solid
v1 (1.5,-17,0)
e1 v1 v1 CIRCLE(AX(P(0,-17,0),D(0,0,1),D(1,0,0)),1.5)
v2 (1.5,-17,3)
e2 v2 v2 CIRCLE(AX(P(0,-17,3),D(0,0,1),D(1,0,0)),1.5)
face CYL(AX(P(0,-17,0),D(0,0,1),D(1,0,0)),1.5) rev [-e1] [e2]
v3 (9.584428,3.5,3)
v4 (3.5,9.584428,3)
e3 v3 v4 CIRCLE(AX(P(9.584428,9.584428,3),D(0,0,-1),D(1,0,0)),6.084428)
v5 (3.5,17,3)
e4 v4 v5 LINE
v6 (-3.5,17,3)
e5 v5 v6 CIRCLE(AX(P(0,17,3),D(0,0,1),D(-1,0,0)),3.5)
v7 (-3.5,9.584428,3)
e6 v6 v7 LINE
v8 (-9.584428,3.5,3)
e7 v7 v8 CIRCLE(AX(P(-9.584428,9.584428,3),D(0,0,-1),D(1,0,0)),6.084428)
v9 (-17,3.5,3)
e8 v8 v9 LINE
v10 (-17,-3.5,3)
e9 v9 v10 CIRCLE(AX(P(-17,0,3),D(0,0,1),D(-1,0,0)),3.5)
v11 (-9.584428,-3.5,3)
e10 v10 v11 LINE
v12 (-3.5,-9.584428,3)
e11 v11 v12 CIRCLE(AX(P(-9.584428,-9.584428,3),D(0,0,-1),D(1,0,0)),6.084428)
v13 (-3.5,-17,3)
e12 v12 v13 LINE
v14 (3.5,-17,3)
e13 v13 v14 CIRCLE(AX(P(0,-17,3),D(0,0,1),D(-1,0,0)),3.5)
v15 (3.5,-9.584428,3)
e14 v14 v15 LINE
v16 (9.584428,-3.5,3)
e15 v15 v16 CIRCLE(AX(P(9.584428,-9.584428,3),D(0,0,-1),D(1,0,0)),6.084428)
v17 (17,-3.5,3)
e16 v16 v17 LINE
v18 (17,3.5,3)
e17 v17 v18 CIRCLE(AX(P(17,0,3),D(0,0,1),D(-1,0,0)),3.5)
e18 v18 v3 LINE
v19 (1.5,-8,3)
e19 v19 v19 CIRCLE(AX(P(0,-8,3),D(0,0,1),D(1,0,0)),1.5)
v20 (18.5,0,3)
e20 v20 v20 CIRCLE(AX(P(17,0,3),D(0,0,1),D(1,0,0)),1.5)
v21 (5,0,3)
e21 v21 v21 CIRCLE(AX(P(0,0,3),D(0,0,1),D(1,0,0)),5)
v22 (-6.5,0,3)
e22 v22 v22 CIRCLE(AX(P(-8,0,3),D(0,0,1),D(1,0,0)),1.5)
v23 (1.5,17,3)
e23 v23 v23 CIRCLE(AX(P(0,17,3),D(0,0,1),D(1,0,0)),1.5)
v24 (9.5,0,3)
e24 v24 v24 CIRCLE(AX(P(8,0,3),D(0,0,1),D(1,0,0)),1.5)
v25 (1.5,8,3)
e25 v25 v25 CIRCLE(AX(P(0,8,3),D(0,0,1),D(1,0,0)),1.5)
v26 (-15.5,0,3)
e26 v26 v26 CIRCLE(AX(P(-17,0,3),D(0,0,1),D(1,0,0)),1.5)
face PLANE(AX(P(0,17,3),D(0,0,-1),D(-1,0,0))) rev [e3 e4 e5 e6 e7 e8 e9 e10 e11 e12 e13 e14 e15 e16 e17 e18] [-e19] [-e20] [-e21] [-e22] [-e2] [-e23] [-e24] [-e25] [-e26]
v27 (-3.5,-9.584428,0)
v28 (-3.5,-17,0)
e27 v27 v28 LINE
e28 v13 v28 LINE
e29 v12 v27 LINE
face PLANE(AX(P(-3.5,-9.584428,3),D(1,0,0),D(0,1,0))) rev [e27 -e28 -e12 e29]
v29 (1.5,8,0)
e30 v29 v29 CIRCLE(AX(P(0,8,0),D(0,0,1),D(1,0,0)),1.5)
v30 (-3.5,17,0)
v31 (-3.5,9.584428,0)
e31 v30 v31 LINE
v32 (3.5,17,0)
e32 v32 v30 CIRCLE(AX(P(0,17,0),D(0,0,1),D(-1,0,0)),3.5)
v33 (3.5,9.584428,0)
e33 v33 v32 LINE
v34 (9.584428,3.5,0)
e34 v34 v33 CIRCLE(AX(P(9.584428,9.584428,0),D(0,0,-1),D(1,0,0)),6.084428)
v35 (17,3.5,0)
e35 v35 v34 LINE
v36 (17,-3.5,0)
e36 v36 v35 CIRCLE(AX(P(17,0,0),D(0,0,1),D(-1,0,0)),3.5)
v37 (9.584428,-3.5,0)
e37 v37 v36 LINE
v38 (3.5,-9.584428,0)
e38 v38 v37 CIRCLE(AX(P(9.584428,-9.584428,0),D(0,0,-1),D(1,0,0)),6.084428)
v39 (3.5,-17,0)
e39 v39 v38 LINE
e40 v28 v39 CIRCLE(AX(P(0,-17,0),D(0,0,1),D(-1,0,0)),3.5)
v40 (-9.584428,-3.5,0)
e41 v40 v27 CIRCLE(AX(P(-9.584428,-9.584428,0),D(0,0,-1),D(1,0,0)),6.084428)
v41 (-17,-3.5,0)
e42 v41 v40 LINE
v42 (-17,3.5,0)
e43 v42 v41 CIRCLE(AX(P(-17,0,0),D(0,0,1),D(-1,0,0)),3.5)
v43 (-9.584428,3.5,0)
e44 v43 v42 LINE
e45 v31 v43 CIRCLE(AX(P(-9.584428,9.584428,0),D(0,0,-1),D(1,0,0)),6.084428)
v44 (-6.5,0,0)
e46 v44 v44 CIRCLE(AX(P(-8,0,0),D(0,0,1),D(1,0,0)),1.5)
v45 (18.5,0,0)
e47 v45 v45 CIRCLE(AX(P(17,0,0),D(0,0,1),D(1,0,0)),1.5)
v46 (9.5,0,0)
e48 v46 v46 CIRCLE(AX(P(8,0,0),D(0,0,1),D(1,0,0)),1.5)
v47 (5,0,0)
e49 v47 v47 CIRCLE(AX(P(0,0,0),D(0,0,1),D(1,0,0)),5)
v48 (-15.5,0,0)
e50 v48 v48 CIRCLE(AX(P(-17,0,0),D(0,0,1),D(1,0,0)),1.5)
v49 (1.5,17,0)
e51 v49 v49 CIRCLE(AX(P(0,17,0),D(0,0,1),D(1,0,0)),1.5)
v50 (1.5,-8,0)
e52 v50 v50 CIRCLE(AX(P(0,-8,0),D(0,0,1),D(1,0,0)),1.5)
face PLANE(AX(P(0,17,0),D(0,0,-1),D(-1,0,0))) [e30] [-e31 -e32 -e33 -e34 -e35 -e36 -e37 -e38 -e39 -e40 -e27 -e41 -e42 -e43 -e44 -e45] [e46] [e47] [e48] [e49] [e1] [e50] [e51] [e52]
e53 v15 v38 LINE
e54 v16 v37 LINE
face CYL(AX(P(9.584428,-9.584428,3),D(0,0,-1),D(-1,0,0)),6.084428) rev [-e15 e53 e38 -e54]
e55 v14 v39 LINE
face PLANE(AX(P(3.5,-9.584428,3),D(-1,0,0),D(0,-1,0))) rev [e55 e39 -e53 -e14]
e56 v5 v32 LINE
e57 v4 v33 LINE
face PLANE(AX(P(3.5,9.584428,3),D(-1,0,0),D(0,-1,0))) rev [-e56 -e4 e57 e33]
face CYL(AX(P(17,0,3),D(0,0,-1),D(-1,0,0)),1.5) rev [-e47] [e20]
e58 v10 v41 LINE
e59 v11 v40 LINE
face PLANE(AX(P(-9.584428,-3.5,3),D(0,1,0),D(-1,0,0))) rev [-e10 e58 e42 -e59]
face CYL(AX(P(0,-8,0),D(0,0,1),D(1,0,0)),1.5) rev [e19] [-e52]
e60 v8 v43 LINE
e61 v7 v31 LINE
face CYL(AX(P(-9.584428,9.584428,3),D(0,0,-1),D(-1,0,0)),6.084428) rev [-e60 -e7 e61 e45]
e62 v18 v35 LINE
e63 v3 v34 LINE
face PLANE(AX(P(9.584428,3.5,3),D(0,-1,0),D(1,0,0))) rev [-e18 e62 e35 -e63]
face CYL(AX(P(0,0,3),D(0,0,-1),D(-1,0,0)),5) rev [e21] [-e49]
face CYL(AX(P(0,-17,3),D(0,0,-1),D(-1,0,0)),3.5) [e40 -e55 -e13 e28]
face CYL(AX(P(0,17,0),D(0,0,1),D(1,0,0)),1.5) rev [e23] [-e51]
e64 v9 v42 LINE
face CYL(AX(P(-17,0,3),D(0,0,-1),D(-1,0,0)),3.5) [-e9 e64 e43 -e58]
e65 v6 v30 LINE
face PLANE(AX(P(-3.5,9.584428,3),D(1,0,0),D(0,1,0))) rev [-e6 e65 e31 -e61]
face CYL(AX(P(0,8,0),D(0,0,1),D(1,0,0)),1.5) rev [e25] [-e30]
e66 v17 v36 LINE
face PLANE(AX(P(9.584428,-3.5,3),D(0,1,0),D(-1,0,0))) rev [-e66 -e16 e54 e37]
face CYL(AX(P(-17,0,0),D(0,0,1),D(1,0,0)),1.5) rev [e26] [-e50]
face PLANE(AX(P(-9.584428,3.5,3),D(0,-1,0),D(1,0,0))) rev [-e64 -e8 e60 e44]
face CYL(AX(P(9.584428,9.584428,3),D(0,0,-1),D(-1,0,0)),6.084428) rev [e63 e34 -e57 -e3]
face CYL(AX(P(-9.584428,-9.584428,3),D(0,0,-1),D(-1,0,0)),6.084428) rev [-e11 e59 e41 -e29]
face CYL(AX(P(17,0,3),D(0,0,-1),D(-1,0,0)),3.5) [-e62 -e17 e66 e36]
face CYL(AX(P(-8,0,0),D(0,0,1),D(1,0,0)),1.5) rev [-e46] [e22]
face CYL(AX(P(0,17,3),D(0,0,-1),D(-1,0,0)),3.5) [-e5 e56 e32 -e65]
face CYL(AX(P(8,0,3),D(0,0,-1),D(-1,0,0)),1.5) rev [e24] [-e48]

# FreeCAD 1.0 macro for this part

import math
import FreeCAD as App
import Part
import Sketcher
Q = App.Units.Quantity

doc = App.newDocument("Part")
params = doc.addObject("Spreadsheet::Sheet", "Params")
for row, (alias, value) in enumerate([
    ("sketch1_diameter", "3 mm"),
    ("sketch1_diameter2", "10 mm"),
    ("sketch1_radius", "3.5 mm"),
    ("pad1_length", "3 mm"),
    ("sketch2_diameter", "3 mm"),
    ("pocket1_length", "3 mm"),
], start=1):
    params.set(f"A{row}", alias)
    params.set(f"B{row}", "=" + value)
    params.setAlias(f"B{row}", alias)

body = doc.addObject("PartDesign::Body", "Body")

# Sketch on XY plane
sketch1 = body.newObject("Sketcher::SketchObject", "Sketch")
sketch1.AttachmentSupport = (doc.getObject("XY_Plane"), [""])
sketch1.MapMode = "FlatFace"
sketch1.addGeometry([
    Part.LineSegment(App.Vector(-3.5, 17, 0), App.Vector(-3.5, 9.584428, 0)),  # 0
    Part.ArcOfCircle(Part.Circle(App.Vector(-9.584428, 9.584428, 0), App.Vector(0, 0, 1), 6.084428), math.radians(-90), math.radians(0)),  # 1
    Part.LineSegment(App.Vector(-9.584428, 3.5, 0), App.Vector(-17, 3.5, 0)),  # 2
    Part.ArcOfCircle(Part.Circle(App.Vector(-17, 0, 0), App.Vector(0, 0, 1), 3.5), math.radians(90), math.radians(270)),  # 3
    Part.LineSegment(App.Vector(-17, -3.5, 0), App.Vector(-9.584428, -3.5, 0)),  # 4
    Part.ArcOfCircle(Part.Circle(App.Vector(-9.584428, -9.584428, 0), App.Vector(0, 0, 1), 6.084428), math.radians(0), math.radians(90)),  # 5
    Part.LineSegment(App.Vector(-3.5, -9.584428, 0), App.Vector(-3.5, -17, 0)),  # 6
    Part.ArcOfCircle(Part.Circle(App.Vector(0, -17, 0), App.Vector(0, 0, 1), 3.5), math.radians(180), math.radians(360)),  # 7
    Part.LineSegment(App.Vector(3.5, -17, 0), App.Vector(3.5, -9.584428, 0)),  # 8
    Part.ArcOfCircle(Part.Circle(App.Vector(9.584428, -9.584428, 0), App.Vector(0, 0, 1), 6.084428), math.radians(90), math.radians(180)),  # 9
    Part.LineSegment(App.Vector(9.584428, -3.5, 0), App.Vector(17, -3.5, 0)),  # 10
    Part.ArcOfCircle(Part.Circle(App.Vector(17, 0, 0), App.Vector(0, 0, 1), 3.5), math.radians(-90), math.radians(90)),  # 11
    Part.LineSegment(App.Vector(17, 3.5, 0), App.Vector(9.584428, 3.5, 0)),  # 12
    Part.ArcOfCircle(Part.Circle(App.Vector(9.584428, 9.584428, 0), App.Vector(0, 0, 1), 6.084428), math.radians(180), math.radians(270)),  # 13
    Part.LineSegment(App.Vector(3.5, 9.584428, 0), App.Vector(3.5, 17, 0)),  # 14
    Part.ArcOfCircle(Part.Circle(App.Vector(0, 17, 0), App.Vector(0, 0, 1), 3.5), math.radians(0), math.radians(180)),  # 15
    Part.Circle(App.Vector(17, 0, 0), App.Vector(0, 0, 1), 1.5),  # 16
    Part.Circle(App.Vector(8, 0, 0), App.Vector(0, 0, 1), 1.5),  # 17
    Part.Circle(App.Vector(0, 0, 0), App.Vector(0, 0, 1), 5),  # 18
], False)
sketch1.addConstraint([
    Sketcher.Constraint("Tangent", 0, 2, 1, 2),
    Sketcher.Constraint("Tangent", 1, 1, 2, 1),
    Sketcher.Constraint("Tangent", 2, 2, 3, 1),
    Sketcher.Constraint("Tangent", 3, 2, 4, 1),
    Sketcher.Constraint("Tangent", 4, 2, 5, 2),
    Sketcher.Constraint("Tangent", 5, 1, 6, 1),
    Sketcher.Constraint("Tangent", 6, 2, 7, 1),
    Sketcher.Constraint("Tangent", 7, 2, 8, 1),
    Sketcher.Constraint("Tangent", 8, 2, 9, 2),
    Sketcher.Constraint("Tangent", 9, 1, 10, 1),
    Sketcher.Constraint("Tangent", 10, 2, 11, 1),
    Sketcher.Constraint("Tangent", 11, 2, 12, 1),
    Sketcher.Constraint("Tangent", 12, 2, 13, 2),
    Sketcher.Constraint("Tangent", 13, 1, 14, 1),
    Sketcher.Constraint("Tangent", 14, 2, 15, 1),
    Sketcher.Constraint("Tangent", 15, 2, 0, 1),
    Sketcher.Constraint("Vertical", 0),
    Sketcher.Constraint("Horizontal", 2),
    Sketcher.Constraint("Horizontal", 4),
    Sketcher.Constraint("Vertical", 6),
    Sketcher.Constraint("Vertical", 8),
    Sketcher.Constraint("Horizontal", 10),
    Sketcher.Constraint("Horizontal", 12),
    Sketcher.Constraint("Vertical", 14),
    Sketcher.Constraint("Coincident", 18, 3, -1, 1),
    Sketcher.Constraint("Coincident", 16, 3, 11, 3),
    Sketcher.Constraint("Equal", 1, 5),
    Sketcher.Constraint("Equal", 3, 7),
    Sketcher.Constraint("Equal", 5, 9),
    Sketcher.Constraint("Equal", 7, 11),
    Sketcher.Constraint("Equal", 9, 13),
    Sketcher.Constraint("Equal", 11, 15),
    Sketcher.Constraint("Equal", 16, 17),
    Sketcher.Constraint("Symmetric", 1, 3, 9, 3, -1, 1),
    Sketcher.Constraint("Symmetric", 5, 3, 9, 3, -2),
    Sketcher.Constraint("PointOnObject", 17, 3, -1),
    Sketcher.Constraint("Equal", 4, 10),
    Sketcher.Constraint("Equal", 12, 0),
    Sketcher.Constraint("Equal", 0, 6),
    Sketcher.Constraint("Diameter", 16, Q("3 mm")),
    Sketcher.Constraint("Diameter", 18, Q("10 mm")),
    Sketcher.Constraint("Radius", 3, Q("3.5 mm")),
    Sketcher.Constraint("DistanceX", 3, 3, -1, 1, Q("17 mm")),
    Sketcher.Constraint("DistanceX", -1, 1, 17, 3, Q("8 mm")),
    Sketcher.Constraint("Radius", 1, Q("6.084428 mm")),
])
sketch1.setExpression("Constraints[39]", "Params.sketch1_diameter")
sketch1.setExpression("Constraints[40]", "Params.sketch1_diameter2")
sketch1.setExpression("Constraints[41]", "Params.sketch1_radius")
pad1 = body.newObject("PartDesign::Pad", "Pad")
pad1.Profile = sketch1
pad1.setExpression("Length", "Params.pad1_length")

# Sketch on XY plane
sketch2 = body.newObject("Sketcher::SketchObject", "Sketch001")
sketch2.AttachmentSupport = (doc.getObject("XY_Plane"), [""])
sketch2.MapMode = "FlatFace"
sketch2.addGeometry([
    Part.Circle(App.Vector(17, 0, 0), App.Vector(0, 0, 1), 1.5),  # 0
    Part.Circle(App.Vector(8, 0, 0), App.Vector(0, 0, 1), 1.5),  # 1
    Part.Circle(App.Vector(0, -8, 0), App.Vector(0, 0, 1), 1.5),  # 2
    Part.Circle(App.Vector(0, -17, 0), App.Vector(0, 0, 1), 1.5),  # 3
    Part.Circle(App.Vector(-8, 0, 0), App.Vector(0, 0, 1), 1.5),  # 4
    Part.Circle(App.Vector(-17, 0, 0), App.Vector(0, 0, 1), 1.5),  # 5
    Part.Circle(App.Vector(0, 8, 0), App.Vector(0, 0, 1), 1.5),  # 6
    Part.Circle(App.Vector(0, 17, 0), App.Vector(0, 0, 1), 1.5),  # 7
], False)
sketch2.addConstraint([
    Sketcher.Constraint("Equal", 0, 1),
    Sketcher.Constraint("Equal", 1, 2),
    Sketcher.Constraint("Equal", 2, 3),
    Sketcher.Constraint("Equal", 3, 4),
    Sketcher.Constraint("Equal", 4, 5),
    Sketcher.Constraint("Equal", 5, 6),
    Sketcher.Constraint("Equal", 6, 7),
    Sketcher.Constraint("Symmetric", 1, 3, 4, 3, -1, 1),
    Sketcher.Constraint("Symmetric", 0, 3, 5, 3, -1, 1),
    Sketcher.Constraint("Symmetric", 2, 3, 6, 3, -1, 1),
    Sketcher.Constraint("Symmetric", 3, 3, 7, 3, -1, 1),
    Sketcher.Constraint("PointOnObject", 0, 3, -1),
    Sketcher.Constraint("PointOnObject", 1, 3, -1),
    Sketcher.Constraint("PointOnObject", 2, 3, -2),
    Sketcher.Constraint("PointOnObject", 3, 3, -2),
    Sketcher.Constraint("Diameter", 0, Q("3 mm")),
    Sketcher.Constraint("DistanceX", -1, 1, 0, 3, Q("17 mm")),
    Sketcher.Constraint("DistanceX", -1, 1, 1, 3, Q("8 mm")),
    Sketcher.Constraint("DistanceY", 2, 3, -1, 1, Q("8 mm")),
    Sketcher.Constraint("DistanceY", 3, 3, -1, 1, Q("17 mm")),
])
sketch2.setExpression("Constraints[15]", "Params.sketch2_diameter")
pocket1 = body.newObject("PartDesign::Pocket", "Pocket")
pocket1.Profile = sketch2
pocket1.setExpression("Length", "Params.pocket1_length")
pocket1.Reversed = True

doc.recompute()
